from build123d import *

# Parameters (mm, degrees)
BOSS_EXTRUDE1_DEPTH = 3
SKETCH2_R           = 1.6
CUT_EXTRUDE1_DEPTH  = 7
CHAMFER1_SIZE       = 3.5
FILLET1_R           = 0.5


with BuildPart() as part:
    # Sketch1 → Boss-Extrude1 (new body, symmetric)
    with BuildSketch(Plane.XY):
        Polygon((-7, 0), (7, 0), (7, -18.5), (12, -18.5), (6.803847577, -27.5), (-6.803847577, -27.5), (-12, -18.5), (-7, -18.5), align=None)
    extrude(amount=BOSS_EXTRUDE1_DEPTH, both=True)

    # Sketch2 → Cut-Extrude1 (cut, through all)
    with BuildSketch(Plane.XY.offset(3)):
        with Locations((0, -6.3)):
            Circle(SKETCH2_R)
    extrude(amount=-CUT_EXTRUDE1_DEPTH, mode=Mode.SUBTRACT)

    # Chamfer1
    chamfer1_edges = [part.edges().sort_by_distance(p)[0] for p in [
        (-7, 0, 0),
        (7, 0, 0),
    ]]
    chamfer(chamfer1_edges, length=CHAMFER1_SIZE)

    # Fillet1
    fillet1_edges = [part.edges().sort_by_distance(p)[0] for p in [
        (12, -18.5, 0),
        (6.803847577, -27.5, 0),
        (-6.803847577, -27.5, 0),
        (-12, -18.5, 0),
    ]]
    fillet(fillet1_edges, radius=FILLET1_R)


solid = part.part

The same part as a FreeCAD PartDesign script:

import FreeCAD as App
import Part
import Sketcher

V = App.Vector
Q = App.Units.Quantity


def edges_at(feature, points):
    """Names of the edges that pass closest to the given points."""
    edges = feature.Shape.Edges
    near = lambda p: min(range(len(edges)), key=lambda i: edges[i].distToShape(Part.Vertex(*p))[0])
    return sorted({f"Edge{near(p) + 1}" for p in points})


def add_polygon(sketch, points):
    """Adds a closed chain of lines whose ends are joined by coincident constraints."""
    first, n = sketch.GeometryCount, len(points)
    for a, b in zip(points, points[1:] + points[:1]):
        sketch.addGeometry(Part.LineSegment(App.Vector(*a, 0), App.Vector(*b, 0)), False)
    for i in range(n):
        sketch.addConstraint(Sketcher.Constraint("Coincident", first + i, 2, first + (i + 1) % n, 1))

doc = App.newDocument("Part")
body = doc.addObject("PartDesign::Body", "Body")

# Sketch on XY plane
sketch1 = body.newObject("Sketcher::SketchObject", "Sketch")
sketch1.AttachmentSupport = (doc.getObject("XY_Plane"), [""])
sketch1.MapMode = "FlatFace"
add_polygon(sketch1, [(7, 0), (-7, 0), (-7, -18), (-12, -18), (-7, -28), (7, -28), (12, -18), (7, -18)])  # lines 0-7
sketch1.addConstraint([
    Sketcher.Constraint("Horizontal", 0),
    Sketcher.Constraint("Vertical", 1),
    Sketcher.Constraint("Horizontal", 2),
    Sketcher.Constraint("Horizontal", 4),
    Sketcher.Constraint("Horizontal", 6),
    Sketcher.Constraint("Vertical", 7),
    Sketcher.Constraint("Symmetric", 0, 2, 7, 2, -1, 1),
    Sketcher.Constraint("Symmetric", 2, 2, 5, 2, -2),
    Sketcher.Constraint("Equal", 3, 5),
    Sketcher.Constraint("DistanceX", 0, 2, 0, 1, 14.0),
    Sketcher.Constraint("DistanceX", 2, 2, 2, 1, 5.0),
    Sketcher.Constraint("Angle", 3, Q("-60 deg")),
    Sketcher.Constraint("DistanceY", 1, 2, 1, 1, 18.5),
    Sketcher.Constraint("DistanceY", 3, 2, 1, 2, 9.0),
])
pad1 = body.newObject("PartDesign::Pad", "Pad")
pad1.Profile = sketch1
pad1.Length = 6
pad1.Midplane = True

# Sketch on XY plane
sketch2 = body.newObject("Sketcher::SketchObject", "Sketch001")
sketch2.AttachmentSupport = (doc.getObject("XY_Plane"), [""])
sketch2.MapMode = "FlatFace"
sketch2.AttachmentOffset = App.Placement(V(0, 0, 3), App.Rotation())
sketch2.addGeometry(Part.Circle(V(0, -6.3, 0), V(0, 0, 1), 1.6), False)
sketch2.addConstraint([
    Sketcher.Constraint("PointOnObject", 0, 3, -2),
    Sketcher.Constraint("Diameter", 0, 3.2),
    Sketcher.Constraint("DistanceY", 0, 3, -1, 1, 6.3),
])
pocket1 = body.newObject("PartDesign::Pocket", "Pocket")
pocket1.Profile = sketch2
pocket1.Type = "ThroughAll"
doc.recompute()

chamfer = body.newObject("PartDesign::Chamfer", "Chamfer")
chamfer.Base = (pocket1, edges_at(pocket1, [(-7, 0, 0), (7, 0, 0)]))
chamfer.Size = 3.5
doc.recompute()

fillet = body.newObject("PartDesign::Fillet", "Fillet")
fillet.Base = (chamfer, edges_at(chamfer, [
    (12, -18.5, 0),
    (6.804, -27.5, 0),
    (-6.804, -27.5, 0),
    (-12, -18.5, 0),
]))
fillet.Radius = 0.5

doc.recompute()
